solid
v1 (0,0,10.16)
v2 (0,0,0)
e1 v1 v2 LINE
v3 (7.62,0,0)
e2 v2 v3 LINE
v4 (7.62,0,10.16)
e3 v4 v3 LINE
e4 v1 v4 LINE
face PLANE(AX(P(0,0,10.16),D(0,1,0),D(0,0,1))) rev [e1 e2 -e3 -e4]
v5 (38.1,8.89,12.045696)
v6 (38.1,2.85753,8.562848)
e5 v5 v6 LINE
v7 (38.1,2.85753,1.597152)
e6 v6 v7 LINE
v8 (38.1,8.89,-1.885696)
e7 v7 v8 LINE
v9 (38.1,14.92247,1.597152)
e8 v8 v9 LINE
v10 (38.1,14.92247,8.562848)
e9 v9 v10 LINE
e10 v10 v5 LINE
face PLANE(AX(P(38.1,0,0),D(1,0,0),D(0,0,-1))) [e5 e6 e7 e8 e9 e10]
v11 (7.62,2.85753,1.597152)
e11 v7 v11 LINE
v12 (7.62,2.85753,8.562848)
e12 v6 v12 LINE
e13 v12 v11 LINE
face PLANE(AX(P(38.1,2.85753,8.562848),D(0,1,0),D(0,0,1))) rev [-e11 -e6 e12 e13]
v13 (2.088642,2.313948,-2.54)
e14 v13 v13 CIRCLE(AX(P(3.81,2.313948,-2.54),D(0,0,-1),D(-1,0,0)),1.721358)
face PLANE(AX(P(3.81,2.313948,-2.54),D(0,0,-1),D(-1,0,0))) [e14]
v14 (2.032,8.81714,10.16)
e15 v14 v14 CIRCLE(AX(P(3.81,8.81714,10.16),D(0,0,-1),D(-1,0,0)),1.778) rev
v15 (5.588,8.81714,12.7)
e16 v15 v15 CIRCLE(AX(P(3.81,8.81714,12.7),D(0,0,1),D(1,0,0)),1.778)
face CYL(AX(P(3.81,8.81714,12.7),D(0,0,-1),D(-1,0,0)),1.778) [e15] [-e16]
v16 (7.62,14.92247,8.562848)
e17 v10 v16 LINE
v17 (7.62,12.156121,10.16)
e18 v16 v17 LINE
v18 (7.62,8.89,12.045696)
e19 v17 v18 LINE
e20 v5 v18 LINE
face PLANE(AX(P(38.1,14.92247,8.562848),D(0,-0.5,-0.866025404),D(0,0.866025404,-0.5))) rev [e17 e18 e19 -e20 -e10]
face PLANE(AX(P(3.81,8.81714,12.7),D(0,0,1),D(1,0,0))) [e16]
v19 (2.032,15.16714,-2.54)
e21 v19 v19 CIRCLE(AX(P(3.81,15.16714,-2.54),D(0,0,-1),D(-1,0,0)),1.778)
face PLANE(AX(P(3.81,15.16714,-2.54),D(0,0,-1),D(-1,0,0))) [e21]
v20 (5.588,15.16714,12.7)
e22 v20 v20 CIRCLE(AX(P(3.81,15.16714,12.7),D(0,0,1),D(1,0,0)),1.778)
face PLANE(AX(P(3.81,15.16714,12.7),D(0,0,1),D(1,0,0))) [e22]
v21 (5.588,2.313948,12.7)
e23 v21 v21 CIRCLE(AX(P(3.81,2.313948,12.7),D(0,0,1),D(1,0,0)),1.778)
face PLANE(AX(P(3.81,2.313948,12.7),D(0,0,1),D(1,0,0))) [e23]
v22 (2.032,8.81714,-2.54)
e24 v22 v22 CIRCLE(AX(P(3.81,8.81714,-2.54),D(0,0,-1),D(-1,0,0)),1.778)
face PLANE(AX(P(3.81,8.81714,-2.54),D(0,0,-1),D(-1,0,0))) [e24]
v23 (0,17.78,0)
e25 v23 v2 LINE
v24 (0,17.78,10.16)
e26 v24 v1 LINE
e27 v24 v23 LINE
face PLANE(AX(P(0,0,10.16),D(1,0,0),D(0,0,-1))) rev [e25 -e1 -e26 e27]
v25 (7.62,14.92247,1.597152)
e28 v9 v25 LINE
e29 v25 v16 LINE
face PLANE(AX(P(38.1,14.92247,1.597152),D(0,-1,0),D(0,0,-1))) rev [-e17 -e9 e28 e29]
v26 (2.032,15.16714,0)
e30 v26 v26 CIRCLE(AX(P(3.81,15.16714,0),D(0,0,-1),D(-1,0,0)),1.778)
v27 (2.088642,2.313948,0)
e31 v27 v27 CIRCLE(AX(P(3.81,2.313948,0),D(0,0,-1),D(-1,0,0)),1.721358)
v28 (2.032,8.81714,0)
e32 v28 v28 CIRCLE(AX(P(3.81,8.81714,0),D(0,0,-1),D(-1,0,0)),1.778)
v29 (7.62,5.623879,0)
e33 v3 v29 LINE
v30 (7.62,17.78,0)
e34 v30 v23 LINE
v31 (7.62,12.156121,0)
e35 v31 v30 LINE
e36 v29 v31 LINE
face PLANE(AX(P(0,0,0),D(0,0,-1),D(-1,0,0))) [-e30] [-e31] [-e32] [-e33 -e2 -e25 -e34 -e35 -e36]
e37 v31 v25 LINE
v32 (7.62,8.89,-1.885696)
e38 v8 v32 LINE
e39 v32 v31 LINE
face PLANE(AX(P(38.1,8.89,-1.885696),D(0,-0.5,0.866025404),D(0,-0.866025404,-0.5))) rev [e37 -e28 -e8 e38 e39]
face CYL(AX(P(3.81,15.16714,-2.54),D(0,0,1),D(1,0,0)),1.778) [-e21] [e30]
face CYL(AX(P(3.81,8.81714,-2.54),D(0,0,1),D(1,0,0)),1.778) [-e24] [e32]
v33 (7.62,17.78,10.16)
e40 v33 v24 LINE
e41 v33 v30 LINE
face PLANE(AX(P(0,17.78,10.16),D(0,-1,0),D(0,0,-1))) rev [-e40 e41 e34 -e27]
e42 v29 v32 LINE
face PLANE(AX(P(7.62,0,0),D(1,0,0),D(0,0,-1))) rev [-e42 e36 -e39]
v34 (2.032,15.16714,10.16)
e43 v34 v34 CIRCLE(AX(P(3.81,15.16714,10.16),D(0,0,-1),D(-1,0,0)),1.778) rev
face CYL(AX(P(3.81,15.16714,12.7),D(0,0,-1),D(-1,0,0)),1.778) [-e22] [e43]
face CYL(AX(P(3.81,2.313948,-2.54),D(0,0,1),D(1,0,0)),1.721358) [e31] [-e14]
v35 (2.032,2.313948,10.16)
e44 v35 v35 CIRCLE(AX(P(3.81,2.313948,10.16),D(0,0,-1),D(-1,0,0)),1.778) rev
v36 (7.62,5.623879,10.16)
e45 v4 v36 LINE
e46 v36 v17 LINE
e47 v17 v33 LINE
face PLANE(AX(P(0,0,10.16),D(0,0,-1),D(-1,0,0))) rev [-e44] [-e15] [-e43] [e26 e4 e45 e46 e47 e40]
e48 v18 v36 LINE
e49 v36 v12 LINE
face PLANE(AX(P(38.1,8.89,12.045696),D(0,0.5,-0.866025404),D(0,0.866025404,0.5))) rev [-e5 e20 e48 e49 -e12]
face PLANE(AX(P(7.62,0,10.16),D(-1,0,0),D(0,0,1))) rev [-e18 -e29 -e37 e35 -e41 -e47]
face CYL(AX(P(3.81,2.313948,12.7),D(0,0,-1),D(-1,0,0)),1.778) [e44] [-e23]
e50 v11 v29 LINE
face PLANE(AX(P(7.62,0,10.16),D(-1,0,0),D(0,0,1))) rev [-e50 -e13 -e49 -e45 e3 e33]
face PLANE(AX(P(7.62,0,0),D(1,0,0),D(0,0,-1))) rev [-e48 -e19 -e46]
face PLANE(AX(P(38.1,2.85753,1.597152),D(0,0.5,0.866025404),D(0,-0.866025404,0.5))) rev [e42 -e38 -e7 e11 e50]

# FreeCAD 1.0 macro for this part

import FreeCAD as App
import Part
import Sketcher
from FreeCAD import Vector
Q = App.Units.Quantity

doc = App.newDocument("Part")
params = doc.addObject("Spreadsheet::Sheet", "Params")
for row, (alias, value) in enumerate([
    ("sketch1_width", "0.3 in"),
    ("sketch1_height", "0.7 in"),
    ("pad1_length", "0.4 in"),
    ("pad2_length", "1.2 in"),
    ("sketch3_diameter", "0.14 in"),
    ("pad3_length", "0.1 in"),
    ("sketch4_diameter", "0.14 in"),
    ("pad4_length", "0.1 in"),
], start=1):
    params.set(f"A{row}", alias)
    params.set(f"B{row}", "=" + value)
    params.setAlias(f"B{row}", alias)

body = doc.addObject("PartDesign::Body", "Body")

sketch1 = doc.addObject("Sketcher::SketchObject", "Sketch")
body.addObject(sketch1)
sketch1.AttachmentSupport = (doc.XY_Plane, [""])
sketch1.MapMode = "FlatFace"
sketch1.addGeometry(Part.LineSegment(Vector(0, 18, 0), Vector(0, 0, 0)), False)
sketch1.addGeometry(Part.LineSegment(Vector(0, 0, 0), Vector(8, 0, 0)), False)
sketch1.addGeometry(Part.LineSegment(Vector(8, 0, 0), Vector(8, 18, 0)), False)
sketch1.addGeometry(Part.LineSegment(Vector(8, 18, 0), Vector(0, 18, 0)), False)
sketch1.addConstraint(Sketcher.Constraint("Coincident", 0, 2, 1, 1))
sketch1.addConstraint(Sketcher.Constraint("Coincident", 1, 2, 2, 1))
sketch1.addConstraint(Sketcher.Constraint("Coincident", 2, 2, 3, 1))
sketch1.addConstraint(Sketcher.Constraint("Coincident", 3, 2, 0, 1))
sketch1.addConstraint(Sketcher.Constraint("Vertical", 0))
sketch1.addConstraint(Sketcher.Constraint("Horizontal", 1))
sketch1.addConstraint(Sketcher.Constraint("Vertical", 2))
sketch1.addConstraint(Sketcher.Constraint("Horizontal", 3))
sketch1.addConstraint(Sketcher.Constraint("Coincident", 0, 2, -1, 1))
sketch1.addConstraint(Sketcher.Constraint("DistanceX", 1, 1, 1, 2, Q("0.3 in")))
sketch1.addConstraint(Sketcher.Constraint("DistanceY", 0, 2, 0, 1, Q("0.7 in")))
sketch1.setExpression("Constraints[9]", "Params.sketch1_width")
sketch1.setExpression("Constraints[10]", "Params.sketch1_height")
pad1 = doc.addObject("PartDesign::Pad", "Pad")
body.addObject(pad1)
pad1.Profile = sketch1
pad1.setExpression("Length", "Params.pad1_length")

sketch2 = doc.addObject("Sketcher::SketchObject", "Sketch001")
body.addObject(sketch2)
sketch2.AttachmentSupport = (doc.YZ_Plane, [""])
sketch2.MapMode = "FlatFace"
sketch2.AttachmentOffset = App.Placement(Vector(0, 0, 0.3 * 25.4), App.Rotation())
sketch2.addGeometry(Part.LineSegment(Vector(9, -2, 0), Vector(15, 2, 0)), False)
sketch2.addGeometry(Part.LineSegment(Vector(15, 2, 0), Vector(15, 9, 0)), False)
sketch2.addGeometry(Part.LineSegment(Vector(15, 9, 0), Vector(9, 12, 0)), False)
sketch2.addGeometry(Part.LineSegment(Vector(9, 12, 0), Vector(3, 9, 0)), False)
sketch2.addGeometry(Part.LineSegment(Vector(3, 9, 0), Vector(3, 2, 0)), False)
sketch2.addGeometry(Part.LineSegment(Vector(3, 2, 0), Vector(9, -2, 0)), False)
sketch2.addConstraint(Sketcher.Constraint("Coincident", 0, 2, 1, 1))
sketch2.addConstraint(Sketcher.Constraint("Coincident", 1, 2, 2, 1))
sketch2.addConstraint(Sketcher.Constraint("Coincident", 2, 2, 3, 1))
sketch2.addConstraint(Sketcher.Constraint("Coincident", 3, 2, 4, 1))
sketch2.addConstraint(Sketcher.Constraint("Coincident", 4, 2, 5, 1))
sketch2.addConstraint(Sketcher.Constraint("Coincident", 5, 2, 0, 1))
sketch2.addConstraint(Sketcher.Constraint("Vertical", 1))
sketch2.addConstraint(Sketcher.Constraint("Vertical", 4))
sketch2.addConstraint(Sketcher.Constraint("Parallel", 0, 3))
sketch2.addConstraint(Sketcher.Constraint("Parallel", 2, 5))
sketch2.addConstraint(Sketcher.Constraint("Horizontal", 1, 2, 3, 2))
sketch2.addConstraint(Sketcher.Constraint("Horizontal", 0, 2, 4, 2))
sketch2.addConstraint(Sketcher.Constraint("Vertical", 2, 2, 5, 2))
sketch2.addConstraint(Sketcher.Constraint("Angle", 0, Q("30 deg")))
sketch2.addConstraint(Sketcher.Constraint("DistanceX", -1, 1, 2, 2, Q("0.35 in")))
sketch2.addConstraint(Sketcher.Constraint("DistanceY", 1, 1, 1, 2, Q("6.965696 mm")))
sketch2.addConstraint(Sketcher.Constraint("DistanceX", -1, 1, 0, 2, Q("14.92247 mm")))
sketch2.addConstraint(Sketcher.Constraint("DistanceY", -1, 1, 0, 2, Q("1.597152 mm")))
pad2 = doc.addObject("PartDesign::Pad", "Pad001")
body.addObject(pad2)
pad2.Profile = sketch2
pad2.setExpression("Length", "Params.pad2_length")

sketch3 = doc.addObject("Sketcher::SketchObject", "Sketch002")
body.addObject(sketch3)
sketch3.AttachmentSupport = (doc.XY_Plane, [""])
sketch3.MapMode = "FlatFace"
sketch3.addGeometry(Part.Circle(Vector(3.8, 15.2, 0), Vector(0, 0, 1), 1.8), False)
sketch3.addGeometry(Part.Circle(Vector(3.8, 8.8, 0), Vector(0, 0, 1), 1.8), False)
sketch3.addGeometry(Part.Circle(Vector(3.8, 2.3, 0), Vector(0, 0, 1), 1.7), False)
sketch3.addConstraint(Sketcher.Constraint("Equal", 0, 1))
sketch3.addConstraint(Sketcher.Constraint("Vertical", 0, 3, 1, 3))
sketch3.addConstraint(Sketcher.Constraint("Vertical", 1, 3, 2, 3))
sketch3.addConstraint(Sketcher.Constraint("Diameter", 0, Q("0.14 in")))
sketch3.addConstraint(Sketcher.Constraint("DistanceX", -1, 1, 0, 3, Q("0.15 in")))
sketch3.addConstraint(Sketcher.Constraint("DistanceY", 1, 3, 0, 3, Q("0.25 in")))
sketch3.addConstraint(Sketcher.Constraint("Diameter", 2, Q("3.442716 mm")))
sketch3.addConstraint(Sketcher.Constraint("DistanceY", -1, 1, 0, 3, Q("15.16714 mm")))
sketch3.addConstraint(Sketcher.Constraint("DistanceY", -1, 1, 2, 3, Q("2.313948 mm")))
sketch3.setExpression("Constraints[3]", "Params.sketch3_diameter")
pad3 = doc.addObject("PartDesign::Pad", "Pad002")
body.addObject(pad3)
pad3.Profile = sketch3
pad3.setExpression("Length", "Params.pad3_length")
pad3.Reversed = True

sketch4 = doc.addObject("Sketcher::SketchObject", "Sketch003")
body.addObject(sketch4)
sketch4.AttachmentSupport = (doc.XY_Plane, [""])
sketch4.MapMode = "FlatFace"
sketch4.AttachmentOffset = App.Placement(Vector(0, 0, 0.5 * 25.4), App.Rotation())
sketch4.addGeometry(Part.Circle(Vector(3.8, 15.2, 0), Vector(0, 0, 1), 1.8), False)
sketch4.addGeometry(Part.Circle(Vector(3.8, 8.8, 0), Vector(0, 0, 1), 1.8), False)
sketch4.addGeometry(Part.Circle(Vector(3.8, 2.3, 0), Vector(0, 0, 1), 1.8), False)
sketch4.addConstraint(Sketcher.Constraint("Equal", 0, 1))
sketch4.addConstraint(Sketcher.Constraint("Equal", 1, 2))
sketch4.addConstraint(Sketcher.Constraint("Vertical", 0, 3, 1, 3))
sketch4.addConstraint(Sketcher.Constraint("Vertical", 1, 3, 2, 3))
sketch4.addConstraint(Sketcher.Constraint("Diameter", 0, Q("0.14 in")))
sketch4.addConstraint(Sketcher.Constraint("DistanceX", -1, 1, 0, 3, Q("0.15 in")))
sketch4.addConstraint(Sketcher.Constraint("DistanceY", 1, 3, 0, 3, Q("0.25 in")))
sketch4.addConstraint(Sketcher.Constraint("DistanceY", -1, 1, 0, 3, Q("15.16714 mm")))
sketch4.addConstraint(Sketcher.Constraint("DistanceY", -1, 1, 2, 3, Q("2.313948 mm")))
sketch4.setExpression("Constraints[4]", "Params.sketch4_diameter")
pad4 = doc.addObject("PartDesign::Pad", "Pad003")
body.addObject(pad4)
pad4.Profile = sketch4
pad4.setExpression("Length", "Params.pad4_length")
pad4.Reversed = True

doc.recompute()
